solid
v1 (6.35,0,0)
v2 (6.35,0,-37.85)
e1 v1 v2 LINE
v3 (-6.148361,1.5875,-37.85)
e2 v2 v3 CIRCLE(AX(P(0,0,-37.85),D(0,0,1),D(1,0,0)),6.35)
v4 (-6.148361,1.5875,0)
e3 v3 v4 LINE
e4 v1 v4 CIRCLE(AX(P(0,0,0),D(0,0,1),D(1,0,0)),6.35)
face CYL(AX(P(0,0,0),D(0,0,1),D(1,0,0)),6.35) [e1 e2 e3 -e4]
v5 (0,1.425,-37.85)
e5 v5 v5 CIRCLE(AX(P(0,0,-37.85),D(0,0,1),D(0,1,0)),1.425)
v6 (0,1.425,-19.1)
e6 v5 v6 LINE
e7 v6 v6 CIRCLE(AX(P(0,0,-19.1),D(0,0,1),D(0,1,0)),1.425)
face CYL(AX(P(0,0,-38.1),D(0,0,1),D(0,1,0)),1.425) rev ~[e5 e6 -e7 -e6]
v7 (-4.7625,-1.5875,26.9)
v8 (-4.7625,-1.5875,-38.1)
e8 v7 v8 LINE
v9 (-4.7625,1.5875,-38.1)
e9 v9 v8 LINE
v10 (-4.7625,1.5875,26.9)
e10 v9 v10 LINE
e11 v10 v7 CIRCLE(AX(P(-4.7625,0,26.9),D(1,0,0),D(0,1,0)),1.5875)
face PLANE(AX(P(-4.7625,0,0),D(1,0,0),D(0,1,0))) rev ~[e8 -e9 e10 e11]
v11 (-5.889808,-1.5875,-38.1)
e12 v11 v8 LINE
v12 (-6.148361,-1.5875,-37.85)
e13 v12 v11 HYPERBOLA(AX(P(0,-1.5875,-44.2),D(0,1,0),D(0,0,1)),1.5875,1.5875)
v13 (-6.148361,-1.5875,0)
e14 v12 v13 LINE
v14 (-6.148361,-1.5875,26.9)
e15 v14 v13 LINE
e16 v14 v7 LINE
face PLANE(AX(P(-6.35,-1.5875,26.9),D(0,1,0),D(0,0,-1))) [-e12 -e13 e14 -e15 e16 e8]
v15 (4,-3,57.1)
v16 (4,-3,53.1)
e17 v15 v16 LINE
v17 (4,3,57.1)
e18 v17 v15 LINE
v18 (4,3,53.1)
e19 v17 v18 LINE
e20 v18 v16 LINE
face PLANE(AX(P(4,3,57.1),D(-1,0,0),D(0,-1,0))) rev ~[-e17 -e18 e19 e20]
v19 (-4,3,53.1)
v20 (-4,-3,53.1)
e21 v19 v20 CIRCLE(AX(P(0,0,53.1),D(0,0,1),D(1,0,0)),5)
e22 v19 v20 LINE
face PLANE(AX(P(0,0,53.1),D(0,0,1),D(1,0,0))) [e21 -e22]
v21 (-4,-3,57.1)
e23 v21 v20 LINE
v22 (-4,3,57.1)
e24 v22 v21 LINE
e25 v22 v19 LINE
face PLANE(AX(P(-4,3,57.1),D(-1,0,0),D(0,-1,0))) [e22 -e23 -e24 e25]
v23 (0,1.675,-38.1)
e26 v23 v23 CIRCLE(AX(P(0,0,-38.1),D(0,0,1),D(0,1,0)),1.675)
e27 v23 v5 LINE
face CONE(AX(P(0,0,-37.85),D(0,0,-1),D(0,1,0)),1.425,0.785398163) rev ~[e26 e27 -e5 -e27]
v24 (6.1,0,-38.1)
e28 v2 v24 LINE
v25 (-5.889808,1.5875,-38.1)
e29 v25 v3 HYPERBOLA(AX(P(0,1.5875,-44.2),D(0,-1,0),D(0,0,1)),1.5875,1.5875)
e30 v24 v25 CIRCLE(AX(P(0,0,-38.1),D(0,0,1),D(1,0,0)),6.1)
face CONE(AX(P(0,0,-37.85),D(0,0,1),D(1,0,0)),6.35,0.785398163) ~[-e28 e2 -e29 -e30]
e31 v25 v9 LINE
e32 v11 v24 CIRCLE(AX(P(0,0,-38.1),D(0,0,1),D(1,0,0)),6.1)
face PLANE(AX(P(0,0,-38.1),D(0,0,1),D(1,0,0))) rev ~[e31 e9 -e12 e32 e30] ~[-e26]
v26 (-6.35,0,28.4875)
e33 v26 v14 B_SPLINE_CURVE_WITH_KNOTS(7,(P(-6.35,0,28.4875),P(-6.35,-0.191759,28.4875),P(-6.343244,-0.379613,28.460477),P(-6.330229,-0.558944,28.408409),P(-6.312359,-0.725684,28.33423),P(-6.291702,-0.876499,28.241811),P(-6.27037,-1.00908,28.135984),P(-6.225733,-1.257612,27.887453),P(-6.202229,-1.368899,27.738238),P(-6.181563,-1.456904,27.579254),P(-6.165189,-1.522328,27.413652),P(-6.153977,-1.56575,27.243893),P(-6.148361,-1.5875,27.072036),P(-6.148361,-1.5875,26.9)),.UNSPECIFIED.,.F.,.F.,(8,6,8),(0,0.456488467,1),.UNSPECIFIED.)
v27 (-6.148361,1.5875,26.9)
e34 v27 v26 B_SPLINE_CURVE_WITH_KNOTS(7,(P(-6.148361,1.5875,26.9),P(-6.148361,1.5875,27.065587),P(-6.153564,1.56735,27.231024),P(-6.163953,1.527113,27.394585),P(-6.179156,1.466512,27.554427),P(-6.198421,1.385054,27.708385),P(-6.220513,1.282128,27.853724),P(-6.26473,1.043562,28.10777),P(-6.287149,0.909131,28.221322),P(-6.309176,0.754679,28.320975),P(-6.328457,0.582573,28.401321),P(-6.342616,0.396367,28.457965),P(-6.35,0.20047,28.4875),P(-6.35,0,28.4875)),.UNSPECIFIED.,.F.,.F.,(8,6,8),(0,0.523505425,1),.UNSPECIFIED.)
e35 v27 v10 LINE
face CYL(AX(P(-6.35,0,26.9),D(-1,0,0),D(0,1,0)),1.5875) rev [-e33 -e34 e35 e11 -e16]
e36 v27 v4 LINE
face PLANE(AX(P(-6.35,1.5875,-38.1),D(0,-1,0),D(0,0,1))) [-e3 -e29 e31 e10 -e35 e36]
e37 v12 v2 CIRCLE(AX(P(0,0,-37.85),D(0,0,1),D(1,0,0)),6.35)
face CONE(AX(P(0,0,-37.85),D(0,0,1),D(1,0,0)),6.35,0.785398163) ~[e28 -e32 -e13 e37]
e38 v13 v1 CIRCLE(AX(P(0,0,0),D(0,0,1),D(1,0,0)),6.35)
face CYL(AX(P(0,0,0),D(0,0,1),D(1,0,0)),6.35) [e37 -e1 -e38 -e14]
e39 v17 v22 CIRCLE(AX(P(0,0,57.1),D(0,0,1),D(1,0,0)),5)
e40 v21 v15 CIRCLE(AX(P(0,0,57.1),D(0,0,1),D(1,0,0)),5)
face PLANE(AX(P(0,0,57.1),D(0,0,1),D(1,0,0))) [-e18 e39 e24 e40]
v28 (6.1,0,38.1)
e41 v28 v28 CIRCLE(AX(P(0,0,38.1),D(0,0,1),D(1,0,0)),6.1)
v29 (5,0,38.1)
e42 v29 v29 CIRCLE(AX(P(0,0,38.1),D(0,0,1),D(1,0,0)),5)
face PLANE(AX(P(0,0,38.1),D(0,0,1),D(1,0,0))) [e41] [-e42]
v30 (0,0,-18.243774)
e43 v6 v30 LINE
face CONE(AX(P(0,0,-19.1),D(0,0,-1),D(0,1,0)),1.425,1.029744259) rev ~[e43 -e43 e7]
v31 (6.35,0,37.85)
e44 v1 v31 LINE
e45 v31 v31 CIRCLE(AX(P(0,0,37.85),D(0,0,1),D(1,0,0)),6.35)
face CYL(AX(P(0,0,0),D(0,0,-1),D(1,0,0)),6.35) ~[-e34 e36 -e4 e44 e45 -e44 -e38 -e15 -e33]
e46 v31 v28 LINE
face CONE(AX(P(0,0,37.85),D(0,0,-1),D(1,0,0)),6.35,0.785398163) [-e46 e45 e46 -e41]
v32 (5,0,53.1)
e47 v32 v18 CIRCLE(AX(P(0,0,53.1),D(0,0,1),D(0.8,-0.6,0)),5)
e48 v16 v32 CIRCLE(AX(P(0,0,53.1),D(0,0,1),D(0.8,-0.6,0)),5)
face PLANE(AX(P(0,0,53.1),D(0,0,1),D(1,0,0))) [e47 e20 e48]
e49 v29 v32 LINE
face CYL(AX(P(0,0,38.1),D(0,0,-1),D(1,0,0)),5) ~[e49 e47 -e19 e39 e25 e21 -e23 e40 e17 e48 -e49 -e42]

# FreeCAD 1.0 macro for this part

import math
import FreeCAD as App
import Part
import Sketcher

V = App.Vector
Q = App.Units.Quantity


def edges_at(feature, points):
    """Names of the edges that pass closest to the given points."""
    edges = feature.Shape.Edges
    near = lambda p: min(range(len(edges)), key=lambda i: edges[i].distToShape(Part.Vertex(*p))[0])
    return sorted({f"Edge{near(p) + 1}" for p in points})

doc = App.newDocument("Part")
body = doc.addObject("PartDesign::Body", "Body")

# Sketch on XY plane
sketch1 = body.newObject("Sketcher::SketchObject", "Sketch")
sketch1.AttachmentSupport = (doc.getObject("XY_Plane"), [""])
sketch1.MapMode = "FlatFace"
sketch1.addGeometry(Part.Circle(V(0, 0, 0), V(0, 0, 1), 6), False)
sketch1.addConstraint([
    Sketcher.Constraint("Coincident", 0, 3, -1, 1),
    Sketcher.Constraint("Diameter", 0, Q("12.7 mm")),
])
pad1 = body.newObject("PartDesign::Pad", "Pad")
pad1.Profile = sketch1
pad1.Length = 76.2
pad1.Midplane = True

# Sketch on XY plane
sketch2 = body.newObject("Sketcher::SketchObject", "Sketch001")
sketch2.AttachmentSupport = (doc.getObject("XY_Plane"), [""])
sketch2.MapMode = "FlatFace"
sketch2.AttachmentOffset = App.Placement(V(0, 0, 38.1), App.Rotation())
sketch2.addGeometry(Part.Circle(V(0, 0, 0), V(0, 0, 1), 5), False)
sketch2.addConstraint([
    Sketcher.Constraint("Coincident", 0, 3, -1, 1),
    Sketcher.Constraint("Diameter", 0, Q("10 mm")),
])
pad2 = body.newObject("PartDesign::Pad", "Pad001")
pad2.Profile = sketch2
pad2.Length = 19

# Sketch on XY plane
sketch3 = body.newObject("Sketcher::SketchObject", "Sketch002")
sketch3.AttachmentSupport = (doc.getObject("XY_Plane"), [""])
sketch3.MapMode = "FlatFace"
sketch3.AttachmentOffset = App.Placement(V(0, 0, 57.1), App.Rotation())
sketch3.addGeometry([
    Part.ArcOfCircle(Part.Circle(V(0, 0, 0), V(0, 0, 1), 5), math.radians(-37), math.radians(37)),
    Part.LineSegment(V(4, 3, 0), V(4, -3, 0)),
    Part.LineSegment(V(-4, -3, 0), V(-4, 3, 0)),
    Part.ArcOfCircle(Part.Circle(V(0, 0, 0), V(0, 0, 1), 5), math.radians(143), math.radians(217)),
], False)
sketch3.addConstraint([
    Sketcher.Constraint("Coincident", 0, 1, 1, 2),
    Sketcher.Constraint("Coincident", 1, 1, 0, 2),
    Sketcher.Constraint("Coincident", 2, 1, 3, 2),
    Sketcher.Constraint("Coincident", 3, 1, 2, 2),
    Sketcher.Constraint("Vertical", 1),
    Sketcher.Constraint("Vertical", 2),
    Sketcher.Constraint("Coincident", 0, 3, -1, 1),
    Sketcher.Constraint("Coincident", 3, 3, -1, 1),
    Sketcher.Constraint("Equal", 0, 3),
    Sketcher.Constraint("Horizontal", 0, 1, 2, 1),
    Sketcher.Constraint("Radius", 0, Q("5 mm")),
    Sketcher.Constraint("DistanceX", 2, 1, 0, 1, Q("8 mm")),
])
pocket1 = body.newObject("PartDesign::Pocket", "Pocket")
pocket1.Profile = sketch3
pocket1.Length = 4

# Sketch on XY plane
sketch4 = body.newObject("Sketcher::SketchObject", "Sketch003")
sketch4.AttachmentSupport = (doc.getObject("XY_Plane"), [""])
sketch4.MapMode = "FlatFace"
sketch4.AttachmentOffset = App.Placement(V(0, 0, -38.1), App.Rotation())
sketch4.addGeometry(Part.Circle(V(0, 0, 0), V(0, 0, 1), 1.4), False)
sketch4.addConstraint([
    Sketcher.Constraint("Coincident", 0, 3, -1, 1),
    Sketcher.Constraint("Diameter", 0, Q("2.85 mm")),
])
doc.recompute()
hole = body.newObject("PartDesign::Hole", "Hole")
hole.Profile = sketch4
hole.ThreadType = "None"
hole.Diameter = 2.85
hole.DepthType = "Dimension"
hole.Depth = 19
hole.DrillPoint = "Angled"
hole.DrillPointAngle = 118
hole.Reversed = True
doc.recompute()

chamfer = body.newObject("PartDesign::Chamfer", "Chamfer")
chamfer.Base = (hole, edges_at(hole, [(0, -1.425, -38.1), (-6.35, 0, -38.1), (-6.35, 0, 38.1)]))
chamfer.Size = 0.25

# Sketch on YZ plane
sketch5 = body.newObject("Sketcher::SketchObject", "Sketch004")
sketch5.AttachmentSupport = (doc.getObject("YZ_Plane"), [""])
sketch5.MapMode = "FlatFace"
sketch5.AttachmentOffset = App.Placement(V(0, 0, -6.35), App.Rotation())
sketch5.addGeometry([
    Part.LineSegment(V(-1.6, -38.1, 0), V(1.6, -38.1, 0)),
    Part.LineSegment(V(1.6, -38.1, 0), V(1.6, 26.9, 0)),
    Part.ArcOfCircle(Part.Circle(V(0, 26.9, 0), V(0, 0, 1), 1.6), math.radians(0), math.radians(180)),
    Part.LineSegment(V(-1.6, 26.9, 0), V(-1.6, -38.1, 0)),
], False)
sketch5.addConstraint([
    Sketcher.Constraint("Coincident", 0, 2, 1, 1),
    Sketcher.Constraint("Tangent", 1, 2, 2, 1),
    Sketcher.Constraint("Tangent", 2, 2, 3, 1),
    Sketcher.Constraint("Coincident", 3, 2, 0, 1),
    Sketcher.Constraint("Horizontal", 0),
    Sketcher.Constraint("Vertical", 1),
    Sketcher.Constraint("Vertical", 3),
    Sketcher.Constraint("PointOnObject", 2, 3, -2),
    Sketcher.Constraint("DistanceY", 1, 1, 1, 2, Q("65 mm")),
    Sketcher.Constraint("Radius", 2, Q("1.5875 mm")),
    Sketcher.Constraint("DistanceY", -1, 1, 2, 3, Q("26.9 mm")),
])
pocket2 = body.newObject("PartDesign::Pocket", "Pocket001")
pocket2.Profile = sketch5
pocket2.Length = 1.5875
pocket2.Reversed = True

doc.recompute()
